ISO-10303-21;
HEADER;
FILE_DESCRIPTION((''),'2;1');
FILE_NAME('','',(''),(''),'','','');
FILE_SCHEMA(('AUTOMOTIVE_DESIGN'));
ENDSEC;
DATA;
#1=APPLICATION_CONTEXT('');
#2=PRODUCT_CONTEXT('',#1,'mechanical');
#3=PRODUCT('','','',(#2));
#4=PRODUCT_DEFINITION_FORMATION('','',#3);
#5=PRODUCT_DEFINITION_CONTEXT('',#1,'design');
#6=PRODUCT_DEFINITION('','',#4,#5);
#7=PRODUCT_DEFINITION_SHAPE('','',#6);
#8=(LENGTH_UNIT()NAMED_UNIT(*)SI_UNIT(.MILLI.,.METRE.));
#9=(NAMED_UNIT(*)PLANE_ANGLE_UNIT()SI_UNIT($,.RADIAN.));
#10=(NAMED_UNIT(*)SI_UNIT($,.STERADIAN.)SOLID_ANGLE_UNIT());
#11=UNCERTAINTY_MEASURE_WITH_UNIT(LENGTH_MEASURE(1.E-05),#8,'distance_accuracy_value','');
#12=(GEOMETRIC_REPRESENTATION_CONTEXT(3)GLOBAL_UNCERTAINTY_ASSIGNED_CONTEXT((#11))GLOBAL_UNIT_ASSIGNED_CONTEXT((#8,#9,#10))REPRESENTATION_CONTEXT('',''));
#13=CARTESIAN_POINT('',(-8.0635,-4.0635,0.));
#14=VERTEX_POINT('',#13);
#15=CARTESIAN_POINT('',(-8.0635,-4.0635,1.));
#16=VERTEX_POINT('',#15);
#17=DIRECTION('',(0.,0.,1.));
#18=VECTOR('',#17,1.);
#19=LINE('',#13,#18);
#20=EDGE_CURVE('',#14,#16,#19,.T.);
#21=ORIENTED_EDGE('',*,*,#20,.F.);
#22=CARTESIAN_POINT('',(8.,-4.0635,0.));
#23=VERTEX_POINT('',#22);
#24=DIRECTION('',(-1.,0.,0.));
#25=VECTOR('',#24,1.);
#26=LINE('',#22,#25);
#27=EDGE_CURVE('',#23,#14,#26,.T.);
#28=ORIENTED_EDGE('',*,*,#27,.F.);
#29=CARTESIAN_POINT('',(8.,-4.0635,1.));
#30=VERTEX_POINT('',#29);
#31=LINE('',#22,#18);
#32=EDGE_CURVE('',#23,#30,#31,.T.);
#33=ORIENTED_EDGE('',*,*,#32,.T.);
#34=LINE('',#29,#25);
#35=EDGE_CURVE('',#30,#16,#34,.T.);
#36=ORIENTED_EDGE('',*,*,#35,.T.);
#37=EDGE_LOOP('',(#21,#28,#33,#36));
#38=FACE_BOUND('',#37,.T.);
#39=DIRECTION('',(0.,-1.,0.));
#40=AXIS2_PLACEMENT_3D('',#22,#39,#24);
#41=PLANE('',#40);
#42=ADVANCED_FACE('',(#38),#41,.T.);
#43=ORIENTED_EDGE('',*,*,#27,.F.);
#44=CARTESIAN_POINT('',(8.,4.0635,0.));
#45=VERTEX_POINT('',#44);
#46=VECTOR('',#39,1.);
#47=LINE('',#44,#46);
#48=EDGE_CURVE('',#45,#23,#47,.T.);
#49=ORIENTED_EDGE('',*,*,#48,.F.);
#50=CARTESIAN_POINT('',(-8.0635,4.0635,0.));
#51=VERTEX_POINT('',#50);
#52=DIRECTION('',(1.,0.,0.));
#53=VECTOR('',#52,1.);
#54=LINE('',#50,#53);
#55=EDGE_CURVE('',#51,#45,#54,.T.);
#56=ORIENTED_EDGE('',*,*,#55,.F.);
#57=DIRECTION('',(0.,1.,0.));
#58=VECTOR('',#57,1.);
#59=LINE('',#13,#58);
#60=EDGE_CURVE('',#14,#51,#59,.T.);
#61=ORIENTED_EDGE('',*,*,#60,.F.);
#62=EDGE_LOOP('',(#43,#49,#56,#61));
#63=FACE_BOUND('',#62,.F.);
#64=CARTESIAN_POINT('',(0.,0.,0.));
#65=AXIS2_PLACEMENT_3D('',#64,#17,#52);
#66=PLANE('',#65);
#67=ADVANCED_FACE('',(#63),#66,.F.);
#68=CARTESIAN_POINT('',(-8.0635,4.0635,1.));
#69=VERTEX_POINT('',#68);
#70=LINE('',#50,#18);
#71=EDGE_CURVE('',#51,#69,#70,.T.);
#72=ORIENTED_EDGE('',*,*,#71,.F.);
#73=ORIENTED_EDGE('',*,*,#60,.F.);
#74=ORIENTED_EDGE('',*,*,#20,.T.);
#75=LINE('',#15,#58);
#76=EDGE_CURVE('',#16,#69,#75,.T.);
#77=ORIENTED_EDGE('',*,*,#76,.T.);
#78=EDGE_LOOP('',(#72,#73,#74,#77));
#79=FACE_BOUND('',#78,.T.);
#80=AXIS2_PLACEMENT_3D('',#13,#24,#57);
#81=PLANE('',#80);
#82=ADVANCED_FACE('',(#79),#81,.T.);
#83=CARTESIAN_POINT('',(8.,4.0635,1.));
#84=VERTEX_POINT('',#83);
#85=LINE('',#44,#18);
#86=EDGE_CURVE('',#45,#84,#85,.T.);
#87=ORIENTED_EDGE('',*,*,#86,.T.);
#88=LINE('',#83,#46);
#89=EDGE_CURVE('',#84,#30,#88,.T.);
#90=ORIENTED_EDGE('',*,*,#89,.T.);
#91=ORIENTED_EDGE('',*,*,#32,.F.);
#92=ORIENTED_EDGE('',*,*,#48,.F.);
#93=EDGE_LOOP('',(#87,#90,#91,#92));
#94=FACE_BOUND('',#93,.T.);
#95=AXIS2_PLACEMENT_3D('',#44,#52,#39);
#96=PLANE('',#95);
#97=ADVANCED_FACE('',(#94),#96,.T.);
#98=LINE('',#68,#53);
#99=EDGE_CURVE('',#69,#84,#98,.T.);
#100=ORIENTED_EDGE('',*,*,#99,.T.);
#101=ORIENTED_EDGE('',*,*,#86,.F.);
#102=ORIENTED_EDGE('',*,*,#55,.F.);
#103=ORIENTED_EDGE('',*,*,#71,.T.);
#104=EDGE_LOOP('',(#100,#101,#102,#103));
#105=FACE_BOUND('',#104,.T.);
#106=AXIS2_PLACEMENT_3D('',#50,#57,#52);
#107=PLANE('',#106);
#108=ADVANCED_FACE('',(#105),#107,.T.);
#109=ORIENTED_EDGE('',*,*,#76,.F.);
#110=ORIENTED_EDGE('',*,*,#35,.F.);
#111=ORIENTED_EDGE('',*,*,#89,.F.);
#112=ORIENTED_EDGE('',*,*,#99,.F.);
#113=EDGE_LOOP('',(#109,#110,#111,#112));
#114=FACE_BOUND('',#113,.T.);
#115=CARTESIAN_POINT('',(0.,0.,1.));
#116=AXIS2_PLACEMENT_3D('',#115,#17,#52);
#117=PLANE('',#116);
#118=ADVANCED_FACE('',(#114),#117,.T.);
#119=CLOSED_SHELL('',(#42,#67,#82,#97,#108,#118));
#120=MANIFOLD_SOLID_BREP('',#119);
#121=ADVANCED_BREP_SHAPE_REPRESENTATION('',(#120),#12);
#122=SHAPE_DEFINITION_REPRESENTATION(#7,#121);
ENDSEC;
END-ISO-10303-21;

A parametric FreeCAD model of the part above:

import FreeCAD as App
import Part
import Sketcher
Q = App.Units.Quantity

doc = App.newDocument("Part")
body = doc.addObject("PartDesign::Body", "Body")

# Sketch on XY plane
sketch1 = doc.addObject("Sketcher::SketchObject", "Sketch")
body.addObject(sketch1)
sketch1.AttachmentSupport = (doc.XY_Plane, [""])
sketch1.MapMode = "FlatFace"
sketch1.addGeometry([
    Part.LineSegment(App.Vector(8, 4, 0), App.Vector(-8, 4, 0)),
    Part.LineSegment(App.Vector(-8, 4, 0), App.Vector(-8, -4, 0)),
    Part.LineSegment(App.Vector(-8, -4, 0), App.Vector(8, -4, 0)),
    Part.LineSegment(App.Vector(8, -4, 0), App.Vector(8, 4, 0)),
], False)
sketch1.addConstraint([
    Sketcher.Constraint("Coincident", 0, 2, 1, 1),
    Sketcher.Constraint("Coincident", 1, 2, 2, 1),
    Sketcher.Constraint("Coincident", 2, 2, 3, 1),
    Sketcher.Constraint("Coincident", 3, 2, 0, 1),
    Sketcher.Constraint("Horizontal", 0),
    Sketcher.Constraint("Vertical", 1),
    Sketcher.Constraint("Horizontal", 2),
    Sketcher.Constraint("Vertical", 3),
    Sketcher.Constraint("DistanceX", -1, 1, 2, 2, Q("8 mm")),
    Sketcher.Constraint("DistanceY", 1, 2, 1, 1, Q("8.127 mm")),
    Sketcher.Constraint("DistanceX", 0, 2, 0, 1, Q("16.0635 mm")),
    Sketcher.Constraint("DistanceY", -1, 1, 0, 2, Q("4.0635 mm")),
])
pad1 = doc.addObject("PartDesign::Pad", "Pad")
body.addObject(pad1)
pad1.Profile = sketch1
pad1.Length = 1

doc.recompute()
